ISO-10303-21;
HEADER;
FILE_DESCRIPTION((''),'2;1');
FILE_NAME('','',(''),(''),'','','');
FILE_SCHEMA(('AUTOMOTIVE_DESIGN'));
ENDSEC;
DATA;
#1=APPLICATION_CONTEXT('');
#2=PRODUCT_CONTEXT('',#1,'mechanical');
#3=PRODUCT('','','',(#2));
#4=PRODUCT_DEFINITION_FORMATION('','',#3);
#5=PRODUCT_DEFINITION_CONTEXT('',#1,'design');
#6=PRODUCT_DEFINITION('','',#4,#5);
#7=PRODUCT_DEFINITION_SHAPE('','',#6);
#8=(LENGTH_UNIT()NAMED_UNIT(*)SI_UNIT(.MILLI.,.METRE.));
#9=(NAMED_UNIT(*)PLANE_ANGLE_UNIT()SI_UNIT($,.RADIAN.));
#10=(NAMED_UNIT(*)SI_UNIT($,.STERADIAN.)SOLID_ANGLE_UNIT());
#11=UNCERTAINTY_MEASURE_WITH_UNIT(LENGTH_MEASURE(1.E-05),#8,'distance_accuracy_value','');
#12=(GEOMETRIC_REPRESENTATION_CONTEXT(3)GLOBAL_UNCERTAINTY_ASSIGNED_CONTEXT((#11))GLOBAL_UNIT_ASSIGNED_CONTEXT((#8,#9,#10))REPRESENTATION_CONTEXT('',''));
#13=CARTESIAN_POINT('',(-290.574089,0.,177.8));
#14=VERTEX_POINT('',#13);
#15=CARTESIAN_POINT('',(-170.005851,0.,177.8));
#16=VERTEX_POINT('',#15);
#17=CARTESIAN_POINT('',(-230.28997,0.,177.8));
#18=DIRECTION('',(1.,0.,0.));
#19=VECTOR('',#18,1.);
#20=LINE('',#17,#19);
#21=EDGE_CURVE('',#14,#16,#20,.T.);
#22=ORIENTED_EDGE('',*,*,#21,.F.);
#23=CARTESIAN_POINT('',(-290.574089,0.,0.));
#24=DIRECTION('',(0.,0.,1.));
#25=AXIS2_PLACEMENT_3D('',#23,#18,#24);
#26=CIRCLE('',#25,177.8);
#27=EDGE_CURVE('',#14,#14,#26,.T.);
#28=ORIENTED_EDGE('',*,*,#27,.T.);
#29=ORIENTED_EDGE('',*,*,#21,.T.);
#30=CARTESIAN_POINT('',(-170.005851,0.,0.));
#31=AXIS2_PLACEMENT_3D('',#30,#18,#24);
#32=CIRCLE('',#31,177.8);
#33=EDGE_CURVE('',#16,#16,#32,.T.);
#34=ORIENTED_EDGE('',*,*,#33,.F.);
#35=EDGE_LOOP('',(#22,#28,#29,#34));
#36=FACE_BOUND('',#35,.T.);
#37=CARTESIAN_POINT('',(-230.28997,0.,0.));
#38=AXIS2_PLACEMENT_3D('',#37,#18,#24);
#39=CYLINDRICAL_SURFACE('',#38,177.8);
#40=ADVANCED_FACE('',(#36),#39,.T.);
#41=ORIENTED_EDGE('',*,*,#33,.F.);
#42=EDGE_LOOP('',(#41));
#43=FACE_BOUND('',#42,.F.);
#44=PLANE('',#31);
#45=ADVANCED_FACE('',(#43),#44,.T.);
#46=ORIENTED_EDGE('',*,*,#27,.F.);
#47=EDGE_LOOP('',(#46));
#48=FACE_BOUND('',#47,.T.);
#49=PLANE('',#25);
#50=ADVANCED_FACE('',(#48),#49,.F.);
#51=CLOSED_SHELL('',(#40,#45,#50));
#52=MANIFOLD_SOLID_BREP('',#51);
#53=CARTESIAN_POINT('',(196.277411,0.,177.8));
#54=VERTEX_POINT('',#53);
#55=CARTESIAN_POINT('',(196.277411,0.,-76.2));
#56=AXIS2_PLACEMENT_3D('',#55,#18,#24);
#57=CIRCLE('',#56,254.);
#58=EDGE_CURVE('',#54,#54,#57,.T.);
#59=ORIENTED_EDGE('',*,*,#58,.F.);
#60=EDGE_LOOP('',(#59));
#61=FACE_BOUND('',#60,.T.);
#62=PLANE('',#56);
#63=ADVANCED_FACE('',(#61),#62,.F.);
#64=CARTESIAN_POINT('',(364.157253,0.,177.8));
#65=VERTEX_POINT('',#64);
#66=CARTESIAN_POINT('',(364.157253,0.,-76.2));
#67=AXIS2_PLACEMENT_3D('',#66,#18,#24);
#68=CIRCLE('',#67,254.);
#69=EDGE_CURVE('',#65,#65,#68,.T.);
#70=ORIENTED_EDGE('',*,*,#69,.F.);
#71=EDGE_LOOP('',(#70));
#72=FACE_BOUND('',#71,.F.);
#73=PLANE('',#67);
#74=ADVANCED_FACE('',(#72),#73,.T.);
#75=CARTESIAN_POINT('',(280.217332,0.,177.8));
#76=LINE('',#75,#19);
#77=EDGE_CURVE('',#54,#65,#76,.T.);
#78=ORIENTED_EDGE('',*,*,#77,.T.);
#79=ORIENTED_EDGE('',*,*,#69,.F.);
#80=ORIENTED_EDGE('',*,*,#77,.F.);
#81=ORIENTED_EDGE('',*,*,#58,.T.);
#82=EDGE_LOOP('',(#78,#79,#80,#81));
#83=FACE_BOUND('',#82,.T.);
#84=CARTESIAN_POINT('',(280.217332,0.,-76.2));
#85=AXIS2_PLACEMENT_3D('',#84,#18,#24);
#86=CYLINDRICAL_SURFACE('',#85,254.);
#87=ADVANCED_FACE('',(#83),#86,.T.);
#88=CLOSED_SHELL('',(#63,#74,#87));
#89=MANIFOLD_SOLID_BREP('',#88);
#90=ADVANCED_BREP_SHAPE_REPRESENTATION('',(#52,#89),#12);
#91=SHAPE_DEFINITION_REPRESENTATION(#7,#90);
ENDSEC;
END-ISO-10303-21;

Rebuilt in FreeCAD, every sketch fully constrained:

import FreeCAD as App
import Part
import Sketcher
Q = App.Units.Quantity

doc = App.newDocument("Part")
body = doc.addObject("PartDesign::Body", "Body")

sketch1 = body.newObject("Sketcher::SketchObject", "Sketch")
sketch1.AttachmentSupport = (doc.getObject("XZ_Plane"), [""])
sketch1.MapMode = "FlatFace"
sketch1.addGeometry([
    Part.LineSegment(App.Vector(196.277411, 177.8, 0), App.Vector(196.277411, -76.2, 0)),
    Part.LineSegment(App.Vector(196.277411, -76.2, 0), App.Vector(364.157253, -76.2, 0)),
    Part.LineSegment(App.Vector(364.157253, -76.2, 0), App.Vector(364.157253, 177.8, 0)),
    Part.LineSegment(App.Vector(364.157253, 177.8, 0), App.Vector(196.277411, 177.8, 0)),
], False)
sketch1.addGeometry(Part.LineSegment(App.Vector(196.277411, -76.2, 0), App.Vector(364.157253, -76.2, 0)), True)
sketch1.addConstraint([
    Sketcher.Constraint("Coincident", 0, 2, 1, 1),
    Sketcher.Constraint("Coincident", 1, 2, 2, 1),
    Sketcher.Constraint("Coincident", 2, 2, 3, 1),
    Sketcher.Constraint("Coincident", 3, 2, 0, 1),
    Sketcher.Constraint("Vertical", 0),
    Sketcher.Constraint("Horizontal", 1),
    Sketcher.Constraint("Vertical", 2),
    Sketcher.Constraint("Horizontal", 3),
    Sketcher.Constraint("Horizontal", 4),
    Sketcher.Constraint("Coincident", 4, 1, 0, 2),
    Sketcher.Constraint("Vertical", 2, 2, 4, 2),
    Sketcher.Constraint("DistanceY", 0, 2, 0, 1, Q("10 in")),
    Sketcher.Constraint("DistanceY", 0, 2, -1, 1, Q("3 in")),
    Sketcher.Constraint("DistanceX", 1, 1, 1, 2, 167.879841),
    Sketcher.Constraint("DistanceX", -1, 1, 0, 2, 196.277411),
])
revolution = body.newObject("PartDesign::Revolution", "Revolution")
revolution.Profile = sketch1
revolution.ReferenceAxis = (sketch1, ["Axis0"])
revolution.Angle = 360
body2 = doc.addObject("PartDesign::Body", "Body001")

sketch2 = body2.newObject("Sketcher::SketchObject", "Sketch001")
sketch2.AttachmentSupport = (doc.getObject("XZ_Plane001"), [""])
sketch2.MapMode = "FlatFace"
sketch2.addGeometry([
    Part.LineSegment(App.Vector(-290.574089, 177.8, 0), App.Vector(-290.574089, 0, 0)),
    Part.LineSegment(App.Vector(-290.574089, 0, 0), App.Vector(-170.005851, 0, 0)),
    Part.LineSegment(App.Vector(-170.005851, 0, 0), App.Vector(-170.005851, 177.8, 0)),
    Part.LineSegment(App.Vector(-170.005851, 177.8, 0), App.Vector(-290.574089, 177.8, 0)),
], False)
sketch2.addConstraint([
    Sketcher.Constraint("Coincident", 0, 2, 1, 1),
    Sketcher.Constraint("Coincident", 1, 2, 2, 1),
    Sketcher.Constraint("Coincident", 2, 2, 3, 1),
    Sketcher.Constraint("Coincident", 3, 2, 0, 1),
    Sketcher.Constraint("Vertical", 0),
    Sketcher.Constraint("Horizontal", 1),
    Sketcher.Constraint("Vertical", 2),
    Sketcher.Constraint("Horizontal", 3),
    Sketcher.Constraint("PointOnObject", 0, 2, -1),
    Sketcher.Constraint("DistanceY", 0, 2, 0, 1, Q("7 in")),
    Sketcher.Constraint("DistanceX", 1, 1, 1, 2, 120.568238),
    Sketcher.Constraint("DistanceX", 0, 2, -1, 1, 290.574089),
])
revolution2 = body2.newObject("PartDesign::Revolution", "Revolution001")
revolution2.Profile = sketch2
revolution2.ReferenceAxis = (sketch2, ["H_Axis"])
revolution2.Angle = 360

doc.recompute()
